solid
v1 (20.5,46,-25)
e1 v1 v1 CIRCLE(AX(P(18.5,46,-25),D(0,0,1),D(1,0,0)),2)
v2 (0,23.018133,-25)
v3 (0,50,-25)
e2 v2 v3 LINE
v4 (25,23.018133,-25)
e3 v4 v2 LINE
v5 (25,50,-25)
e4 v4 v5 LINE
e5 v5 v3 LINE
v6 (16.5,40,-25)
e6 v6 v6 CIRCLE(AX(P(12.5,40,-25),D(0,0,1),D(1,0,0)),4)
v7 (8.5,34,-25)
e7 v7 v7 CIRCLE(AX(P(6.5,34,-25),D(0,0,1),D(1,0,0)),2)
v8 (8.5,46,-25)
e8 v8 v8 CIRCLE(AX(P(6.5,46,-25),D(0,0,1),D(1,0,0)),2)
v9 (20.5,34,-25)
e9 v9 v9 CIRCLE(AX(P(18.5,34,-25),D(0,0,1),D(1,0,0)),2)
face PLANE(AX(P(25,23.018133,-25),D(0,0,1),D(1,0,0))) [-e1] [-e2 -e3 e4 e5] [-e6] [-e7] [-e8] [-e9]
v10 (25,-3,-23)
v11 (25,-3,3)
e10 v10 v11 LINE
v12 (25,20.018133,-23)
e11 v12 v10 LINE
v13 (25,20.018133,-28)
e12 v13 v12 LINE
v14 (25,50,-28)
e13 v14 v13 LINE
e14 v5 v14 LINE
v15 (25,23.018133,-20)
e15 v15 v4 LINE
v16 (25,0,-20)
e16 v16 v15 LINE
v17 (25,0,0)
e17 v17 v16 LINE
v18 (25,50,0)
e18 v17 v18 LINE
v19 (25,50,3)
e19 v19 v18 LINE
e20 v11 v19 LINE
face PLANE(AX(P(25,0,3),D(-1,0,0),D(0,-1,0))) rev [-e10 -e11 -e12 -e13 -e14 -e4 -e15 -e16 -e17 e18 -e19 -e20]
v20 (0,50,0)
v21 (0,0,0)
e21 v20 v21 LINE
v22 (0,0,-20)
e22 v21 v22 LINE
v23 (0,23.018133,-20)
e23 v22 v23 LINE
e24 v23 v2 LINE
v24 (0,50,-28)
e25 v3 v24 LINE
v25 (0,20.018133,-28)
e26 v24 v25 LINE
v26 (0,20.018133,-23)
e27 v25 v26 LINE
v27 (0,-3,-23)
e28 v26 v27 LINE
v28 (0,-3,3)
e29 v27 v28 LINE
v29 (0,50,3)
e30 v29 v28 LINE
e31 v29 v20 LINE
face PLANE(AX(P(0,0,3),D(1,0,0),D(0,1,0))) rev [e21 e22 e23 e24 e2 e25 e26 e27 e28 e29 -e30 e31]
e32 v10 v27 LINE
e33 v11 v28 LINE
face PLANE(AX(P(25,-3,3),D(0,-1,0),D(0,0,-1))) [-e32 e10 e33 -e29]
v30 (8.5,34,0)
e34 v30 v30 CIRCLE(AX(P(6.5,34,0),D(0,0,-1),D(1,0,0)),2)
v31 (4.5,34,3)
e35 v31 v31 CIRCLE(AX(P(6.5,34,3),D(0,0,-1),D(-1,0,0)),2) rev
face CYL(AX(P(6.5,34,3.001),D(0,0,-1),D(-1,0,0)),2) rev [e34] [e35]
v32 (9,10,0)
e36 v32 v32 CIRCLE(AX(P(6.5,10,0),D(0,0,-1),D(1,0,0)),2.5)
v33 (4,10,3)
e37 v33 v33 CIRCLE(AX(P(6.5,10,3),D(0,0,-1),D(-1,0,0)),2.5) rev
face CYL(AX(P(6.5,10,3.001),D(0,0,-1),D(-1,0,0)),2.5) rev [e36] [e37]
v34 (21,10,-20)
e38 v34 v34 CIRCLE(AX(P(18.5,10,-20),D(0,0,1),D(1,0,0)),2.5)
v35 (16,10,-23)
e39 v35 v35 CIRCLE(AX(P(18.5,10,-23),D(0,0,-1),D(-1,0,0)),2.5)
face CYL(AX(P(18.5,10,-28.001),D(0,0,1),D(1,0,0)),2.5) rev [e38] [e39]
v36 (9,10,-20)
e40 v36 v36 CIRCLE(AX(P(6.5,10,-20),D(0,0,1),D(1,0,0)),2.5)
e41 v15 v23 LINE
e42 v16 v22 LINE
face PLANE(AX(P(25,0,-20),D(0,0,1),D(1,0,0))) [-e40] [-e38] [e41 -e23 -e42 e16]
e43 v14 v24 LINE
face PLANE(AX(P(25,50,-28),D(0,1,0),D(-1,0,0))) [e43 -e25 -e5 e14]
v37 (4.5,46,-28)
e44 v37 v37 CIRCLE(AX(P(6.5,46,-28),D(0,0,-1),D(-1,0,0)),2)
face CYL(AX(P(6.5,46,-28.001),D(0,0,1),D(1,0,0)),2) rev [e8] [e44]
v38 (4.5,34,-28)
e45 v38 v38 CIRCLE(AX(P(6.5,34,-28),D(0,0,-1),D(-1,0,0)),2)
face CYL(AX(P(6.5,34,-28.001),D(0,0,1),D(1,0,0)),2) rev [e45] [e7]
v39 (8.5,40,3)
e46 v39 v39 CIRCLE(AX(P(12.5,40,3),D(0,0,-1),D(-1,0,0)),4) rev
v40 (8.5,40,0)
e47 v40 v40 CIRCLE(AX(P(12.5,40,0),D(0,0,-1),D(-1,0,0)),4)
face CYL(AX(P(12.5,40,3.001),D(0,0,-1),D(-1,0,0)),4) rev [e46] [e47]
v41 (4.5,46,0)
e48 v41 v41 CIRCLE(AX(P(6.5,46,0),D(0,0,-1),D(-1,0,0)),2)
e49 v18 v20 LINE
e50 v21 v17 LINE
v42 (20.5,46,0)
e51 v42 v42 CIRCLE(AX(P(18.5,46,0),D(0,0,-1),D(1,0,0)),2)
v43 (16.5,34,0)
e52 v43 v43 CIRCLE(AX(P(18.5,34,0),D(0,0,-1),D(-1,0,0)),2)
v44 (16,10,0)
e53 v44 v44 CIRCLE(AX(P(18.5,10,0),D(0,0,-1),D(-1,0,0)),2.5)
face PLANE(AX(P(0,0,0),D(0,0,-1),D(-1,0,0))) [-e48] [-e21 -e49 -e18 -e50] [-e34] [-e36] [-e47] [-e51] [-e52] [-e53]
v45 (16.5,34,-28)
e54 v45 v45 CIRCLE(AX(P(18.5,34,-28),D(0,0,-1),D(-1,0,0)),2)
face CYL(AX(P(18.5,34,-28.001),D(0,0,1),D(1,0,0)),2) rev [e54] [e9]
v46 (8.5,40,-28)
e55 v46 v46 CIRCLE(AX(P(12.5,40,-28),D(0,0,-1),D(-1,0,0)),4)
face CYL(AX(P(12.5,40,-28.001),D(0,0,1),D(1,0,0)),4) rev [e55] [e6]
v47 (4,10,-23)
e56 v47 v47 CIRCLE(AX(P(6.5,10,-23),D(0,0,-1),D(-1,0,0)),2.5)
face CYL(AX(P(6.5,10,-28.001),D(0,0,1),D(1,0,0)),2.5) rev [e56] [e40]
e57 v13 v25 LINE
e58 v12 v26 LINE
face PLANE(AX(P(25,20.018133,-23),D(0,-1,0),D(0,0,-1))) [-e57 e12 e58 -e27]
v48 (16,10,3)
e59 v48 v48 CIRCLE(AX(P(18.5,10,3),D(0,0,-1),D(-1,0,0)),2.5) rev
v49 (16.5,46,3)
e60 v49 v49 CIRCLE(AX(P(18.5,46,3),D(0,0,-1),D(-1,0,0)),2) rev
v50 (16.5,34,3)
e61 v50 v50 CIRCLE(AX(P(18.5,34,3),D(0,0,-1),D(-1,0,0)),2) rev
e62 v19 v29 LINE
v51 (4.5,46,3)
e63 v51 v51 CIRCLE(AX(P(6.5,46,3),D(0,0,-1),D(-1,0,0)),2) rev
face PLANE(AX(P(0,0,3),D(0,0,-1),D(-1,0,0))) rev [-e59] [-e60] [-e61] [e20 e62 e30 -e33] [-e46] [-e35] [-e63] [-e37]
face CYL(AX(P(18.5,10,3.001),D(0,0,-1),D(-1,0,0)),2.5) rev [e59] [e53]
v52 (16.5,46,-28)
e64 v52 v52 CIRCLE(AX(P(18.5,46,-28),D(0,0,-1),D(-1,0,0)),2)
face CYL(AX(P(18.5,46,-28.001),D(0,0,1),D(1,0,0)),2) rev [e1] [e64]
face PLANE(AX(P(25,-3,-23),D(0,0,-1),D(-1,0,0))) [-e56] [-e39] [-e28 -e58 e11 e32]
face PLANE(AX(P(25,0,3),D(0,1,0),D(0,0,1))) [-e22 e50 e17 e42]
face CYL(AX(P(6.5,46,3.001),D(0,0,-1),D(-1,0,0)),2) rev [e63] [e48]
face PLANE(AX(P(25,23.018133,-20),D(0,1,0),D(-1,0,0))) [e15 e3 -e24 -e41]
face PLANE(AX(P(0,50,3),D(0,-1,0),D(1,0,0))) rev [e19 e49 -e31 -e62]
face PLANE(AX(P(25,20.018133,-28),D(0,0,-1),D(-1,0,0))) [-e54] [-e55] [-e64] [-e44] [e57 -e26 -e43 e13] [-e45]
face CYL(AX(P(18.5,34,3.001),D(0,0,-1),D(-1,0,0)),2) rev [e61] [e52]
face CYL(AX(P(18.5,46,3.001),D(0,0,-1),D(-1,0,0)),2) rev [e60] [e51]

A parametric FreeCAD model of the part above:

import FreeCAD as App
import Part
import Sketcher

doc = App.newDocument("Part")
body = doc.addObject("PartDesign::Body", "Body")

# Sketch on XY plane
sketch1 = body.newObject("Sketcher::SketchObject", "Sketch")
sketch1.AttachmentSupport = (doc.getObject("XY_Plane"), [""])
sketch1.MapMode = "FlatFace"
sketch1.addGeometry([
    Part.LineSegment(App.Vector(0, 50, 0), App.Vector(0, 0, 0)),
    Part.LineSegment(App.Vector(0, 0, 0), App.Vector(25, 0, 0)),
    Part.LineSegment(App.Vector(25, 0, 0), App.Vector(25, 50, 0)),
    Part.LineSegment(App.Vector(25, 50, 0), App.Vector(0, 50, 0)),
], False)
sketch1.addConstraint([
    Sketcher.Constraint("Coincident", 0, 2, 1, 1),
    Sketcher.Constraint("Coincident", 1, 2, 2, 1),
    Sketcher.Constraint("Coincident", 2, 2, 3, 1),
    Sketcher.Constraint("Coincident", 3, 2, 0, 1),
    Sketcher.Constraint("Vertical", 0),
    Sketcher.Constraint("Horizontal", 1),
    Sketcher.Constraint("Vertical", 2),
    Sketcher.Constraint("Horizontal", 3),
    Sketcher.Constraint("Coincident", 0, 2, -1, 1),
    Sketcher.Constraint("DistanceX", 1, 1, 1, 2, 25.0),
    Sketcher.Constraint("DistanceY", 0, 2, 0, 1, 50.0),
])
pad1 = body.newObject("PartDesign::Pad", "Pad")
pad1.Profile = sketch1
pad1.Length = 3

# Sketch on YZ plane
sketch2 = body.newObject("Sketcher::SketchObject", "Sketch001")
sketch2.AttachmentSupport = (doc.getObject("YZ_Plane"), [""])
sketch2.MapMode = "FlatFace"
sketch2.addGeometry([
    Part.LineSegment(App.Vector(20, -23, 0), App.Vector(-3, -23, 0)),  # 0
    Part.LineSegment(App.Vector(-3, -23, 0), App.Vector(-3, 3, 0)),  # 1
    Part.LineSegment(App.Vector(-3, 3, 0), App.Vector(0, 3, 0)),  # 2
    Part.LineSegment(App.Vector(0, 3, 0), App.Vector(0, -20, 0)),  # 3
    Part.LineSegment(App.Vector(0, -20, 0), App.Vector(23, -20, 0)),  # 4
    Part.LineSegment(App.Vector(23, -20, 0), App.Vector(23, -25, 0)),  # 5
    Part.LineSegment(App.Vector(23, -25, 0), App.Vector(50, -25, 0)),  # 6
    Part.LineSegment(App.Vector(50, -25, 0), App.Vector(50, -28, 0)),  # 7
    Part.LineSegment(App.Vector(50, -28, 0), App.Vector(20, -28, 0)),  # 8
    Part.LineSegment(App.Vector(20, -28, 0), App.Vector(20, -23, 0)),  # 9
], False)
sketch2.addConstraint([
    Sketcher.Constraint("Coincident", 0, 2, 1, 1),
    Sketcher.Constraint("Coincident", 1, 2, 2, 1),
    Sketcher.Constraint("Coincident", 2, 2, 3, 1),
    Sketcher.Constraint("Coincident", 3, 2, 4, 1),
    Sketcher.Constraint("Coincident", 4, 2, 5, 1),
    Sketcher.Constraint("Coincident", 5, 2, 6, 1),
    Sketcher.Constraint("Coincident", 6, 2, 7, 1),
    Sketcher.Constraint("Coincident", 7, 2, 8, 1),
    Sketcher.Constraint("Coincident", 8, 2, 9, 1),
    Sketcher.Constraint("Coincident", 9, 2, 0, 1),
    Sketcher.Constraint("Horizontal", 0),
    Sketcher.Constraint("Vertical", 1),
    Sketcher.Constraint("Horizontal", 2),
    Sketcher.Constraint("Vertical", 3),
    Sketcher.Constraint("Horizontal", 4),
    Sketcher.Constraint("Vertical", 5),
    Sketcher.Constraint("Horizontal", 6),
    Sketcher.Constraint("Vertical", 7),
    Sketcher.Constraint("Horizontal", 8),
    Sketcher.Constraint("Vertical", 9),
    Sketcher.Constraint("PointOnObject", 2, 2, -2),
    Sketcher.Constraint("Equal", 0, 4),
    Sketcher.Constraint("Equal", 2, 7),
    Sketcher.Constraint("Equal", 5, 9),
    Sketcher.Constraint("DistanceX", 2, 1, 2, 2, 3.0),
    Sketcher.Constraint("DistanceY", 1, 1, 1, 2, 26.0),
    Sketcher.Constraint("DistanceY", 5, 2, 5, 1, 5.0),
    Sketcher.Constraint("DistanceY", 0, 2, -1, 1, 23.0),
    Sketcher.Constraint("DistanceX", -1, 1, 6, 2, 50.0),
    Sketcher.Constraint("DistanceX", 0, 2, 0, 1, 23.018133),
])
pad2 = body.newObject("PartDesign::Pad", "Pad001")
pad2.Profile = sketch2
pad2.Length = 25

# Sketch on XY plane
sketch3 = body.newObject("Sketcher::SketchObject", "Sketch002")
sketch3.AttachmentSupport = (doc.getObject("XY_Plane"), [""])
sketch3.MapMode = "FlatFace"
sketch3.addGeometry(Part.Circle(App.Vector(18.5, 10, 0), App.Vector(0, 0, 1), 2.5), False)
sketch3.addConstraint([
    Sketcher.Constraint("Diameter", 0, 5.0),
    Sketcher.Constraint("DistanceY", -1, 1, 0, 3, 10.0),
    Sketcher.Constraint("DistanceX", -1, 1, 0, 3, 18.5),
])
pocket1 = body.newObject("PartDesign::Pocket", "Pocket")
pocket1.Profile = sketch3
pocket1.Type = "UpToFirst"
pocket1.Reversed = True

# Sketch on XY plane
sketch4 = body.newObject("Sketcher::SketchObject", "Sketch003")
sketch4.AttachmentSupport = (doc.getObject("XY_Plane"), [""])
sketch4.MapMode = "FlatFace"
sketch4.addGeometry(Part.Circle(App.Vector(6.5, 10, 0), App.Vector(0, 0, 1), 2.5), False)
sketch4.addConstraint([
    Sketcher.Constraint("Diameter", 0, 5.0),
    Sketcher.Constraint("DistanceY", -1, 1, 0, 3, 10.0),
    Sketcher.Constraint("DistanceX", -1, 1, 0, 3, 6.5),
])
pocket2 = body.newObject("PartDesign::Pocket", "Pocket001")
pocket2.Profile = sketch4
pocket2.Type = "UpToFirst"
pocket2.Reversed = True

# Sketch on XY plane
sketch5 = body.newObject("Sketcher::SketchObject", "Sketch004")
sketch5.AttachmentSupport = (doc.getObject("XY_Plane"), [""])
sketch5.MapMode = "FlatFace"
sketch5.addGeometry(Part.Circle(App.Vector(12.5, 40, 0), App.Vector(0, 0, 1), 4), False)
sketch5.addConstraint([
    Sketcher.Constraint("Diameter", 0, 8.0),
    Sketcher.Constraint("DistanceY", -1, 1, 0, 3, 40.0),
    Sketcher.Constraint("DistanceX", -1, 1, 0, 3, 12.5),
])
pocket3 = body.newObject("PartDesign::Pocket", "Pocket002")
pocket3.Profile = sketch5
pocket3.Type = "UpToFirst"
pocket3.Reversed = True

# Sketch on XY plane
sketch6 = body.newObject("Sketcher::SketchObject", "Sketch005")
sketch6.AttachmentSupport = (doc.getObject("XY_Plane"), [""])
sketch6.MapMode = "FlatFace"
sketch6.addGeometry(Part.Circle(App.Vector(6.5, 46, 0), App.Vector(0, 0, 1), 2), False)
sketch6.addConstraint([
    Sketcher.Constraint("Diameter", 0, 4.0),
    Sketcher.Constraint("DistanceY", -1, 1, 0, 3, 46.0),
    Sketcher.Constraint("DistanceX", -1, 1, 0, 3, 6.5),
])
pocket4 = body.newObject("PartDesign::Pocket", "Pocket003")
pocket4.Profile = sketch6
pocket4.Type = "UpToFirst"
pocket4.Reversed = True

# Sketch on XY plane
sketch7 = body.newObject("Sketcher::SketchObject", "Sketch006")
sketch7.AttachmentSupport = (doc.getObject("XY_Plane"), [""])
sketch7.MapMode = "FlatFace"
sketch7.addGeometry(Part.Circle(App.Vector(6.5, 34, 0), App.Vector(0, 0, 1), 2), False)
sketch7.addConstraint([
    Sketcher.Constraint("Diameter", 0, 4.0),
    Sketcher.Constraint("DistanceY", -1, 1, 0, 3, 34.0),
    Sketcher.Constraint("DistanceX", -1, 1, 0, 3, 6.5),
])
pocket5 = body.newObject("PartDesign::Pocket", "Pocket004")
pocket5.Profile = sketch7
pocket5.Type = "UpToFirst"
pocket5.Reversed = True

# Sketch on XY plane
sketch8 = body.newObject("Sketcher::SketchObject", "Sketch007")
sketch8.AttachmentSupport = (doc.getObject("XY_Plane"), [""])
sketch8.MapMode = "FlatFace"
sketch8.addGeometry(Part.Circle(App.Vector(18.5, 34, 0), App.Vector(0, 0, 1), 2), False)
sketch8.addConstraint([
    Sketcher.Constraint("Diameter", 0, 4.0),
    Sketcher.Constraint("DistanceY", -1, 1, 0, 3, 34.0),
    Sketcher.Constraint("DistanceX", -1, 1, 0, 3, 18.5),
])
pocket6 = body.newObject("PartDesign::Pocket", "Pocket005")
pocket6.Profile = sketch8
pocket6.Type = "UpToFirst"
pocket6.Reversed = True

# Sketch on XY plane
sketch9 = body.newObject("Sketcher::SketchObject", "Sketch008")
sketch9.AttachmentSupport = (doc.getObject("XY_Plane"), [""])
sketch9.MapMode = "FlatFace"
sketch9.addGeometry(Part.Circle(App.Vector(18.5, 46, 0), App.Vector(0, 0, 1), 2), False)
sketch9.addConstraint([
    Sketcher.Constraint("Diameter", 0, 4.0),
    Sketcher.Constraint("DistanceY", -1, 1, 0, 3, 46.0),
    Sketcher.Constraint("DistanceX", -1, 1, 0, 3, 18.5),
])
pocket7 = body.newObject("PartDesign::Pocket", "Pocket006")
pocket7.Profile = sketch9
pocket7.Type = "UpToFirst"
pocket7.Reversed = True

# Sketch on XY plane
sketch10 = body.newObject("Sketcher::SketchObject", "Sketch009")
sketch10.AttachmentSupport = (doc.getObject("XY_Plane"), [""])
sketch10.MapMode = "FlatFace"
sketch10.addGeometry(Part.Circle(App.Vector(18.5, 10, 0), App.Vector(0, 0, 1), 2.5), False)
sketch10.addConstraint([
    Sketcher.Constraint("Diameter", 0, 5.0),
    Sketcher.Constraint("DistanceY", -1, 1, 0, 3, 10.0),
    Sketcher.Constraint("DistanceX", -1, 1, 0, 3, 18.5),
])
pocket8 = body.newObject("PartDesign::Pocket", "Pocket007")
pocket8.Profile = sketch10
pocket8.Length = 23

# Sketch on XY plane
sketch11 = body.newObject("Sketcher::SketchObject", "Sketch010")
sketch11.AttachmentSupport = (doc.getObject("XY_Plane"), [""])
sketch11.MapMode = "FlatFace"
sketch11.addGeometry(Part.Circle(App.Vector(6.5, 10, 0), App.Vector(0, 0, 1), 2.5), False)
sketch11.addConstraint([
    Sketcher.Constraint("Diameter", 0, 5.0),
    Sketcher.Constraint("DistanceY", -1, 1, 0, 3, 10.0),
    Sketcher.Constraint("DistanceX", -1, 1, 0, 3, 6.5),
])
pocket9 = body.newObject("PartDesign::Pocket", "Pocket008")
pocket9.Profile = sketch11
pocket9.Length = 23

# Sketch on XY plane
sketch12 = body.newObject("Sketcher::SketchObject", "Sketch011")
sketch12.AttachmentSupport = (doc.getObject("XY_Plane"), [""])
sketch12.MapMode = "FlatFace"
sketch12.addGeometry(Part.Circle(App.Vector(12.5, 40, 0), App.Vector(0, 0, 1), 4), False)
sketch12.addConstraint([
    Sketcher.Constraint("Diameter", 0, 8.0),
    Sketcher.Constraint("DistanceY", -1, 1, 0, 3, 40.0),
    Sketcher.Constraint("DistanceX", -1, 1, 0, 3, 12.5),
])
pocket10 = body.newObject("PartDesign::Pocket", "Pocket009")
pocket10.Profile = sketch12
pocket10.Length = 28

# Sketch on XY plane
sketch13 = body.newObject("Sketcher::SketchObject", "Sketch012")
sketch13.AttachmentSupport = (doc.getObject("XY_Plane"), [""])
sketch13.MapMode = "FlatFace"
sketch13.addGeometry(Part.Circle(App.Vector(6.5, 46, 0), App.Vector(0, 0, 1), 2), False)
sketch13.addConstraint([
    Sketcher.Constraint("Diameter", 0, 4.0),
    Sketcher.Constraint("DistanceY", -1, 1, 0, 3, 46.0),
    Sketcher.Constraint("DistanceX", -1, 1, 0, 3, 6.5),
])
pocket11 = body.newObject("PartDesign::Pocket", "Pocket010")
pocket11.Profile = sketch13
pocket11.Length = 28

# Sketch on XY plane
sketch14 = body.newObject("Sketcher::SketchObject", "Sketch013")
sketch14.AttachmentSupport = (doc.getObject("XY_Plane"), [""])
sketch14.MapMode = "FlatFace"
sketch14.addGeometry(Part.Circle(App.Vector(6.5, 34, 0), App.Vector(0, 0, 1), 2), False)
sketch14.addConstraint([
    Sketcher.Constraint("Diameter", 0, 4.0),
    Sketcher.Constraint("DistanceY", -1, 1, 0, 3, 34.0),
    Sketcher.Constraint("DistanceX", -1, 1, 0, 3, 6.5),
])
pocket12 = body.newObject("PartDesign::Pocket", "Pocket011")
pocket12.Profile = sketch14
pocket12.Length = 28

# Sketch on XY plane
sketch15 = body.newObject("Sketcher::SketchObject", "Sketch014")
sketch15.AttachmentSupport = (doc.getObject("XY_Plane"), [""])
sketch15.MapMode = "FlatFace"
sketch15.addGeometry(Part.Circle(App.Vector(18.5, 34, 0), App.Vector(0, 0, 1), 2), False)
sketch15.addConstraint([
    Sketcher.Constraint("Diameter", 0, 4.0),
    Sketcher.Constraint("DistanceY", -1, 1, 0, 3, 34.0),
    Sketcher.Constraint("DistanceX", -1, 1, 0, 3, 18.5),
])
pocket13 = body.newObject("PartDesign::Pocket", "Pocket012")
pocket13.Profile = sketch15
pocket13.Length = 28

# Sketch on XY plane
sketch16 = body.newObject("Sketcher::SketchObject", "Sketch015")
sketch16.AttachmentSupport = (doc.getObject("XY_Plane"), [""])
sketch16.MapMode = "FlatFace"
sketch16.addGeometry(Part.Circle(App.Vector(18.5, 46, 0), App.Vector(0, 0, 1), 2), False)
sketch16.addConstraint([
    Sketcher.Constraint("Diameter", 0, 4.0),
    Sketcher.Constraint("DistanceY", -1, 1, 0, 3, 46.0),
    Sketcher.Constraint("DistanceX", -1, 1, 0, 3, 18.5),
])
pocket14 = body.newObject("PartDesign::Pocket", "Pocket013")
pocket14.Profile = sketch16
pocket14.Length = 28

doc.recompute()
